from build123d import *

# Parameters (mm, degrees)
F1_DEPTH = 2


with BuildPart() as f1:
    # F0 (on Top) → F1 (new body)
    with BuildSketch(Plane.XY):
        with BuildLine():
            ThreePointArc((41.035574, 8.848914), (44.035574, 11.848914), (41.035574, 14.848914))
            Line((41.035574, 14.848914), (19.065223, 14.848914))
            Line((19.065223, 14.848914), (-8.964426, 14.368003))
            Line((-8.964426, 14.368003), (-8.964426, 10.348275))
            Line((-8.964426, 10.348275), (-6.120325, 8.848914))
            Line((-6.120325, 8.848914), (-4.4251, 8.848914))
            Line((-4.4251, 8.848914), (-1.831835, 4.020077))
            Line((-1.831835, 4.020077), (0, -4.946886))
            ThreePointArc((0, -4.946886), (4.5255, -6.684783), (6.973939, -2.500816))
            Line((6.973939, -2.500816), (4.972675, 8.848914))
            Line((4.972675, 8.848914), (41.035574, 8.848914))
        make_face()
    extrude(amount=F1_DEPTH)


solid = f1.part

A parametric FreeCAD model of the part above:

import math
import FreeCAD as App
import Part
import Sketcher
Q = App.Units.Quantity

doc = App.newDocument("Part")
body = doc.addObject("PartDesign::Body", "Body")

# Sketch on XY plane
sketch1 = body.newObject("Sketcher::SketchObject", "Sketch")
sketch1.AttachmentSupport = (doc.getObject("XY_Plane"), [""])
sketch1.MapMode = "FlatFace"
sketch1.addGeometry(Part.ArcOfCircle(Part.Circle(App.Vector(41, 11.8, 0), App.Vector(0, 0, 1), 3), math.radians(-90), math.radians(90)), False)
sketch1.addGeometry(Part.LineSegment(App.Vector(41, 14.8, 0), App.Vector(19.1, 14.8, 0)), False)
sketch1.addGeometry(Part.LineSegment(App.Vector(19.1, 14.8, 0), App.Vector(-9, 14.4, 0)), False)
sketch1.addGeometry(Part.LineSegment(App.Vector(-9, 14.4, 0), App.Vector(-9, 10.3, 0)), False)
sketch1.addGeometry(Part.LineSegment(App.Vector(-9, 10.3, 0), App.Vector(-6.1, 8.8, 0)), False)
sketch1.addGeometry(Part.LineSegment(App.Vector(-6.1, 8.8, 0), App.Vector(-4.4, 8.8, 0)), False)
sketch1.addGeometry(Part.LineSegment(App.Vector(-4.4, 8.8, 0), App.Vector(-1.8, 4, 0)), False)
sketch1.addGeometry(Part.LineSegment(App.Vector(-1.8, 4, 0), App.Vector(0, -4.9, 0)), False)
sketch1.addGeometry(Part.ArcOfCircle(Part.Circle(App.Vector(3.3, -3.2, 0), App.Vector(0, 0, 1), 3.7), math.radians(-151), math.radians(10)), False)
sketch1.addGeometry(Part.LineSegment(App.Vector(7, -2.5, 0), App.Vector(5, 8.8, 0)), False)
sketch1.addGeometry(Part.LineSegment(App.Vector(5, 8.8, 0), App.Vector(41, 8.8, 0)), False)
sketch1.addConstraint(Sketcher.Constraint("Tangent", 0, 2, 1, 1))
sketch1.addConstraint(Sketcher.Constraint("Coincident", 1, 2, 2, 1))
sketch1.addConstraint(Sketcher.Constraint("Coincident", 2, 2, 3, 1))
sketch1.addConstraint(Sketcher.Constraint("Coincident", 3, 2, 4, 1))
sketch1.addConstraint(Sketcher.Constraint("Coincident", 4, 2, 5, 1))
sketch1.addConstraint(Sketcher.Constraint("Coincident", 5, 2, 6, 1))
sketch1.addConstraint(Sketcher.Constraint("Coincident", 6, 2, 7, 1))
sketch1.addConstraint(Sketcher.Constraint("Coincident", 7, 2, 8, 1))
sketch1.addConstraint(Sketcher.Constraint("Tangent", 8, 2, 9, 1))
sketch1.addConstraint(Sketcher.Constraint("Coincident", 9, 2, 10, 1))
sketch1.addConstraint(Sketcher.Constraint("Tangent", 10, 2, 0, 1))
sketch1.addConstraint(Sketcher.Constraint("Horizontal", 1))
sketch1.addConstraint(Sketcher.Constraint("Vertical", 3))
sketch1.addConstraint(Sketcher.Constraint("Horizontal", 5))
sketch1.addConstraint(Sketcher.Constraint("Horizontal", 10))
sketch1.addConstraint(Sketcher.Constraint("PointOnObject", 7, 2, -2))
sketch1.addConstraint(Sketcher.Constraint("Horizontal", 5, 2, 9, 2))
sketch1.addConstraint(Sketcher.Constraint("Radius", 0, Q("3 mm")))
sketch1.addConstraint(Sketcher.Constraint("Angle", 9, Q("100.000002 deg")))
sketch1.addConstraint(Sketcher.Constraint("DistanceY", 8, 3, 0, 3, Q("15 mm")))
sketch1.addConstraint(Sketcher.Constraint("DistanceX", 2, 2, 0, 2, Q("50 mm")))
sketch1.addConstraint(Sketcher.Constraint("DistanceX", 10, 1, 10, 2, Q("36.062899 mm")))
sketch1.addConstraint(Sketcher.Constraint("Radius", 8, Q("3.744755 mm")))
sketch1.addConstraint(Sketcher.Constraint("DistanceX", 4, 2, 9, 2, Q("11.093 mm")))
sketch1.addConstraint(Sketcher.Constraint("DistanceX", 1, 2, 1, 1, Q("21.970351 mm")))
sketch1.addConstraint(Sketcher.Constraint("DistanceY", 3, 2, 3, 1, Q("4.019728 mm")))
sketch1.addConstraint(Sketcher.Constraint("DistanceX", 5, 2, -1, 1, Q("4.4251 mm")))
sketch1.addConstraint(Sketcher.Constraint("DistanceY", 7, 2, 8, 3, Q("1.7958 mm")))
sketch1.addConstraint(Sketcher.Constraint("Distance", 4, Q("3.21512 mm")))
sketch1.addConstraint(Sketcher.Constraint("Distance", 6, Q("5.481121 mm")))
sketch1.addConstraint(Sketcher.Constraint("Distance", 7, Q("9.152161 mm")))
sketch1.addConstraint(Sketcher.Constraint("DistanceY", -1, 1, 0, 3, Q("11.848914 mm")))
pad1 = body.newObject("PartDesign::Pad", "Pad")
pad1.Profile = sketch1
pad1.Length = 2

doc.recompute()
